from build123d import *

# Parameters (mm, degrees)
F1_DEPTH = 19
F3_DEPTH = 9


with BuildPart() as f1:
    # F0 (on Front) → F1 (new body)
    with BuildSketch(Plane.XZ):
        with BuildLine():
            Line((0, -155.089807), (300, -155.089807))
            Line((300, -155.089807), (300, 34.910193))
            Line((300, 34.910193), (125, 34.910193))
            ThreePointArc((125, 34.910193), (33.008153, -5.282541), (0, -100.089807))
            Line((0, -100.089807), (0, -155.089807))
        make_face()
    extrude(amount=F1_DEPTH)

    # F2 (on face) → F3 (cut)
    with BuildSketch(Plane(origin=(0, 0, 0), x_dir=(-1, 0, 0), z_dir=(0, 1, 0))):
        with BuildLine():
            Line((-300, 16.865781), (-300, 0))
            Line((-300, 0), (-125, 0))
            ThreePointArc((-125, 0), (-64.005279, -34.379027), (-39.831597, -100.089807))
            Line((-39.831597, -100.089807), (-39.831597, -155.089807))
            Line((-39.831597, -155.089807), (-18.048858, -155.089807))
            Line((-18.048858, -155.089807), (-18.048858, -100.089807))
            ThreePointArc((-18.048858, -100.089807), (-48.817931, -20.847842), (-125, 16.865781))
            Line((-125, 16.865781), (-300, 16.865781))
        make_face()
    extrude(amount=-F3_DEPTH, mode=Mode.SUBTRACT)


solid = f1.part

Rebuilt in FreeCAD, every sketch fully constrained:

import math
import FreeCAD as App
import Part
import Sketcher
from FreeCAD import Vector
Q = App.Units.Quantity

doc = App.newDocument("Part")
body = doc.addObject("PartDesign::Body", "Body")

sketch1 = doc.addObject("Sketcher::SketchObject", "Sketch")
body.addObject(sketch1)
sketch1.AttachmentSupport = (doc.XZ_Plane, [""])
sketch1.MapMode = "FlatFace"
sketch1.addGeometry(Part.LineSegment(Vector(0, -155, 0), Vector(300, -155, 0)), False)
sketch1.addGeometry(Part.LineSegment(Vector(300, -155, 0), Vector(300, 35, 0)), False)
sketch1.addGeometry(Part.LineSegment(Vector(300, 35, 0), Vector(125, 35, 0)), False)
sketch1.addGeometry(Part.ArcOfCircle(Part.Circle(Vector(125, -90, 0), Vector(0, 0, 1), 125), math.radians(90), math.radians(184)), False)
sketch1.addGeometry(Part.LineSegment(Vector(0, -100, 0), Vector(0, -155, 0)), False)
sketch1.addConstraint(Sketcher.Constraint("Coincident", 0, 2, 1, 1))
sketch1.addConstraint(Sketcher.Constraint("Coincident", 1, 2, 2, 1))
sketch1.addConstraint(Sketcher.Constraint("Tangent", 2, 2, 3, 1))
sketch1.addConstraint(Sketcher.Constraint("Coincident", 3, 2, 4, 1))
sketch1.addConstraint(Sketcher.Constraint("Coincident", 4, 2, 0, 1))
sketch1.addConstraint(Sketcher.Constraint("Horizontal", 0))
sketch1.addConstraint(Sketcher.Constraint("Vertical", 1))
sketch1.addConstraint(Sketcher.Constraint("Horizontal", 2))
sketch1.addConstraint(Sketcher.Constraint("Vertical", 4))
sketch1.addConstraint(Sketcher.Constraint("PointOnObject", 3, 2, -2))
sketch1.addConstraint(Sketcher.Constraint("DistanceX", 0, 1, 0, 2, Q("300 mm")))
sketch1.addConstraint(Sketcher.Constraint("DistanceX", 2, 2, 2, 1, Q("175 mm")))
sketch1.addConstraint(Sketcher.Constraint("DistanceY", 1, 1, 1, 2, Q("190 mm")))
sketch1.addConstraint(Sketcher.Constraint("DistanceY", 4, 2, 4, 1, Q("55 mm")))
sketch1.addConstraint(Sketcher.Constraint("DistanceY", 3, 3, -1, 1, Q("90.460178 mm")))
pad1 = doc.addObject("PartDesign::Pad", "Pad")
body.addObject(pad1)
pad1.Profile = sketch1
pad1.Length = 19

sketch2 = doc.addObject("Sketcher::SketchObject", "Sketch001")
body.addObject(sketch2)
sketch2.AttachmentSupport = (doc.XZ_Plane, [""])
sketch2.MapMode = "FlatFace"
sketch2.addGeometry(Part.LineSegment(Vector(300, 17, 0), Vector(300, 0, 0)), False)
sketch2.addGeometry(Part.LineSegment(Vector(300, 0, 0), Vector(125, 0, 0)), False)
sketch2.addGeometry(Part.ArcOfCircle(Part.Circle(Vector(141, -100, 0), Vector(0, 0, 1), 101), math.radians(99), math.radians(180)), False)
sketch2.addGeometry(Part.LineSegment(Vector(40, -100, 0), Vector(40, -155, 0)), False)
sketch2.addGeometry(Part.LineSegment(Vector(40, -155, 0), Vector(18, -155, 0)), False)
sketch2.addGeometry(Part.LineSegment(Vector(18, -155, 0), Vector(18, -100, 0)), False)
sketch2.addGeometry(Part.ArcOfCircle(Part.Circle(Vector(135, -100, 0), Vector(0, 0, 1), 117), math.radians(95), math.radians(180)), False)
sketch2.addGeometry(Part.LineSegment(Vector(125, 17, 0), Vector(300, 17, 0)), False)
sketch2.addConstraint(Sketcher.Constraint("Coincident", 0, 2, 1, 1))
sketch2.addConstraint(Sketcher.Constraint("Coincident", 1, 2, 2, 1))
sketch2.addConstraint(Sketcher.Constraint("Tangent", 2, 2, 3, 1))
sketch2.addConstraint(Sketcher.Constraint("Coincident", 3, 2, 4, 1))
sketch2.addConstraint(Sketcher.Constraint("Coincident", 4, 2, 5, 1))
sketch2.addConstraint(Sketcher.Constraint("Tangent", 5, 2, 6, 2))
sketch2.addConstraint(Sketcher.Constraint("Coincident", 6, 1, 7, 1))
sketch2.addConstraint(Sketcher.Constraint("Coincident", 7, 2, 0, 1))
sketch2.addConstraint(Sketcher.Constraint("Vertical", 0))
sketch2.addConstraint(Sketcher.Constraint("Horizontal", 1))
sketch2.addConstraint(Sketcher.Constraint("Vertical", 3))
sketch2.addConstraint(Sketcher.Constraint("Horizontal", 4))
sketch2.addConstraint(Sketcher.Constraint("Vertical", 5))
sketch2.addConstraint(Sketcher.Constraint("Horizontal", 7))
sketch2.addConstraint(Sketcher.Constraint("PointOnObject", 0, 2, -1))
sketch2.addConstraint(Sketcher.Constraint("Horizontal", 2, 3, 6, 3))
sketch2.addConstraint(Sketcher.Constraint("Vertical", 1, 2, 6, 1))
sketch2.addConstraint(Sketcher.Constraint("DistanceX", 1, 2, 1, 1, Q("175 mm")))
sketch2.addConstraint(Sketcher.Constraint("DistanceY", 3, 2, 3, 1, Q("55 mm")))
sketch2.addConstraint(Sketcher.Constraint("DistanceX", -1, 1, 0, 2, Q("300 mm")))
sketch2.addConstraint(Sketcher.Constraint("Radius", 2, Q("101.396913 mm")))
sketch2.addConstraint(Sketcher.Constraint("Radius", 6, Q("117.423508 mm")))
sketch2.addConstraint(Sketcher.Constraint("DistanceX", 4, 2, 4, 1, Q("21.782739 mm")))
sketch2.addConstraint(Sketcher.Constraint("DistanceY", 0, 2, 0, 1, Q("16.865781 mm")))
pocket1 = doc.addObject("PartDesign::Pocket", "Pocket")
body.addObject(pocket1)
pocket1.Profile = sketch2
pocket1.Length = 9
pocket1.Reversed = True

doc.recompute()
